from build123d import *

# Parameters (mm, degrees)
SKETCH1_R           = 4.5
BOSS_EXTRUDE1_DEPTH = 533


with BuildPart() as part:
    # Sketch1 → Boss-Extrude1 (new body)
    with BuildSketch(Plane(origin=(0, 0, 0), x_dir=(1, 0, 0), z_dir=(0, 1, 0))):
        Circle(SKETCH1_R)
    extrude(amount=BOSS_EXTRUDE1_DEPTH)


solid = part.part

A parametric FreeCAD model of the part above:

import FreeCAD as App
import Part
import Sketcher

V = App.Vector

doc = App.newDocument("Part")
params = doc.addObject("Spreadsheet::Sheet", "Params")
for row, (alias, value) in enumerate([
    ("sketch1_diameter", "9 mm"),
    ("pad1_length", "533 mm"),
], start=1):
    params.set(f"A{row}", alias)
    params.set(f"B{row}", "=" + value)
    params.setAlias(f"B{row}", alias)

body = doc.addObject("PartDesign::Body", "Body")

# Sketch on XZ plane
sketch1 = body.newObject("Sketcher::SketchObject", "Sketch")
sketch1.AttachmentSupport = (doc.getObject("XZ_Plane"), [""])
sketch1.MapMode = "FlatFace"
sketch1.addGeometry(Part.Circle(V(0, 0, 0), V(0, 0, 1), 4.5), False)
sketch1.addConstraint([
    Sketcher.Constraint("Coincident", 0, 3, -1, 1),
    Sketcher.Constraint("Diameter", 0, 9.0),
])
sketch1.setExpression("Constraints[1]", "Params.sketch1_diameter")
pad1 = body.newObject("PartDesign::Pad", "Pad")
pad1.Profile = sketch1
pad1.setExpression("Length", "Params.pad1_length")
pad1.Reversed = True

doc.recompute()
